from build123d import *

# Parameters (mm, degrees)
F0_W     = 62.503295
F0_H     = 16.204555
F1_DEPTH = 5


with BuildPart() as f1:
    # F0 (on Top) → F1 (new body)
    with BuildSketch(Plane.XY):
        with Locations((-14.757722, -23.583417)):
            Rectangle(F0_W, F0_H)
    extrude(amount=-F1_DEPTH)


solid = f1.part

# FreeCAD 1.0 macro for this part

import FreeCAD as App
import Part
import Sketcher
Q = App.Units.Quantity

doc = App.newDocument("Part")
body = doc.addObject("PartDesign::Body", "Body")

# Sketch on XY plane
sketch1 = body.newObject("Sketcher::SketchObject", "Sketch")
sketch1.AttachmentSupport = (doc.getObject("XY_Plane"), [""])
sketch1.MapMode = "FlatFace"
sketch1.addGeometry([
    Part.LineSegment(App.Vector(-46, -15, 0), App.Vector(-46, -32, 0)),
    Part.LineSegment(App.Vector(-46, -32, 0), App.Vector(16, -32, 0)),
    Part.LineSegment(App.Vector(16, -32, 0), App.Vector(16, -15, 0)),
    Part.LineSegment(App.Vector(16, -15, 0), App.Vector(-46, -15, 0)),
], False)
sketch1.addConstraint([
    Sketcher.Constraint("Coincident", 0, 2, 1, 1),
    Sketcher.Constraint("Coincident", 1, 2, 2, 1),
    Sketcher.Constraint("Coincident", 2, 2, 3, 1),
    Sketcher.Constraint("Coincident", 3, 2, 0, 1),
    Sketcher.Constraint("Vertical", 0),
    Sketcher.Constraint("Horizontal", 1),
    Sketcher.Constraint("Vertical", 2),
    Sketcher.Constraint("Horizontal", 3),
    Sketcher.Constraint("DistanceX", 1, 1, 1, 2, Q("62.503295 mm")),
    Sketcher.Constraint("DistanceY", 0, 2, 0, 1, Q("16.204555 mm")),
    Sketcher.Constraint("DistanceX", 0, 2, -1, 1, Q("46.009369 mm")),
    Sketcher.Constraint("DistanceY", 2, 2, -1, 1, Q("15.481139 mm")),
])
pad1 = body.newObject("PartDesign::Pad", "Pad")
pad1.Profile = sketch1
pad1.Length = 5
pad1.Reversed = True

doc.recompute()
